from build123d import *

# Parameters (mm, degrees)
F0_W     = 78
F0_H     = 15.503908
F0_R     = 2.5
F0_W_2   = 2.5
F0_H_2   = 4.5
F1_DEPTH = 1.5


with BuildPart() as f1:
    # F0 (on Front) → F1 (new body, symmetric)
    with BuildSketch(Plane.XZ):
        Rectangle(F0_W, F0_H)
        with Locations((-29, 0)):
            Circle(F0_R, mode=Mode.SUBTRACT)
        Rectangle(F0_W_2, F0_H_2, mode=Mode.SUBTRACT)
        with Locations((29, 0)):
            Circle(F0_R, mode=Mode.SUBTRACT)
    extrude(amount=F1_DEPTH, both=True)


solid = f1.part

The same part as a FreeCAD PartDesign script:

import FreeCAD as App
import Part
import Sketcher

V = App.Vector
Q = App.Units.Quantity


def add_polygon(sketch, points):
    """Adds a closed chain of lines whose ends are joined by coincident constraints."""
    first, n = sketch.GeometryCount, len(points)
    for a, b in zip(points, points[1:] + points[:1]):
        sketch.addGeometry(Part.LineSegment(App.Vector(*a, 0), App.Vector(*b, 0)), False)
    for i in range(n):
        sketch.addConstraint(Sketcher.Constraint("Coincident", first + i, 2, first + (i + 1) % n, 1))

doc = App.newDocument("Part")
body = doc.addObject("PartDesign::Body", "Body")

sketch1 = body.newObject("Sketcher::SketchObject", "Sketch")
sketch1.AttachmentSupport = (doc.getObject("XZ_Plane"), [""])
sketch1.MapMode = "FlatFace"
add_polygon(sketch1, [(-39, 7.8), (-39, -7.8), (39, -7.8), (39, 7.8)])
sketch1.addGeometry(Part.Circle(V(-29, 0, 0), V(0, 0, 1), 2.5), False)
add_polygon(sketch1, [(1.2, -2.2), (-1.2, -2.2), (-1.2, 2.2), (1.2, 2.2)])
sketch1.addGeometry(Part.Circle(V(29, 0, 0), V(0, 0, 1), 2.5), False)
sketch1.addConstraint(Sketcher.Constraint("Vertical", 0))
sketch1.addConstraint(Sketcher.Constraint("Horizontal", 1))
sketch1.addConstraint(Sketcher.Constraint("Vertical", 2))
sketch1.addConstraint(Sketcher.Constraint("Horizontal", 3))
sketch1.addConstraint(Sketcher.Constraint("Horizontal", 5))
sketch1.addConstraint(Sketcher.Constraint("Vertical", 6))
sketch1.addConstraint(Sketcher.Constraint("Horizontal", 7))
sketch1.addConstraint(Sketcher.Constraint("Vertical", 8))
sketch1.addConstraint(Sketcher.Constraint("Equal", 4, 9))
sketch1.addConstraint(Sketcher.Constraint("Symmetric", 4, 3, 9, 3, -1, 1))
sketch1.addConstraint(Sketcher.Constraint("Symmetric", 0, 2, 2, 2, -1, 1))
sketch1.addConstraint(Sketcher.Constraint("Symmetric", 5, 2, 7, 2, -1, 1))
sketch1.addConstraint(Sketcher.Constraint("PointOnObject", 4, 3, -1))
sketch1.addConstraint(Sketcher.Constraint("Diameter", 4, Q("5 mm")))
sketch1.addConstraint(Sketcher.Constraint("DistanceX", 1, 1, 1, 2, Q("78 mm")))
sketch1.addConstraint(Sketcher.Constraint("DistanceX", 5, 2, 5, 1, Q("2.5 mm")))
sketch1.addConstraint(Sketcher.Constraint("DistanceY", 6, 1, 6, 2, Q("4.5 mm")))
sketch1.addConstraint(Sketcher.Constraint("DistanceX", 4, 3, -1, 1, Q("29 mm")))
sketch1.addConstraint(Sketcher.Constraint("DistanceY", 0, 2, 0, 1, Q("15.503908 mm")))
pad1 = body.newObject("PartDesign::Pad", "Pad")
pad1.Profile = sketch1
pad1.Length = 3
pad1.Midplane = True

doc.recompute()
